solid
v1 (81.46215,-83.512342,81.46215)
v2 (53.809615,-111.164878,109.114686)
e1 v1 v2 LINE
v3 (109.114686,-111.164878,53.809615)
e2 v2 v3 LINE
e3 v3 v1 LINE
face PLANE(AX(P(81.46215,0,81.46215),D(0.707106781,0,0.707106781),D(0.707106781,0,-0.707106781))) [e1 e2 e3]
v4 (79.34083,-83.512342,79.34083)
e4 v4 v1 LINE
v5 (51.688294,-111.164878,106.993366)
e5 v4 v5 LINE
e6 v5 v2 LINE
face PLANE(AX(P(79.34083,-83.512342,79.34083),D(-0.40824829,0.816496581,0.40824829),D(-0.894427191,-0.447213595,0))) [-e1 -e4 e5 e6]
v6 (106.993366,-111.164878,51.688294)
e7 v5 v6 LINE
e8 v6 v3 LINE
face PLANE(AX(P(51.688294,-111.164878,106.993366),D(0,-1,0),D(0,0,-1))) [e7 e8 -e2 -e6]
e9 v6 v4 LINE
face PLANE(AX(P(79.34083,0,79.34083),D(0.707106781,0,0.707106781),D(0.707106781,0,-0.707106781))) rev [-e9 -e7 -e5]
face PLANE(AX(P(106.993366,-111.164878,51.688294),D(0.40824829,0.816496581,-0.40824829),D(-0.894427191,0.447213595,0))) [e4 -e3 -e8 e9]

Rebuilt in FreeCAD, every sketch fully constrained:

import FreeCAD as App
import Part
import Sketcher

doc = App.newDocument("Part")
body = doc.addObject("PartDesign::Body", "Body")

# Sketch on an angled plane
sketch1 = doc.addObject("Sketcher::SketchObject", "Sketch")
body.addObject(sketch1)
sketch1.Placement = App.Placement(App.Vector(80.40149, 0, 80.40149), App.Rotation(App.Vector(0.707106781, 0, -0.707106781), App.Vector(0, 0.999999999, 0), App.Vector(0.707106781, 0, 0.707106781), "ZXY"))
sketch1.addGeometry(Part.LineSegment(App.Vector(0, -84, 0), App.Vector(-39, -111, 0)), False)
sketch1.addGeometry(Part.LineSegment(App.Vector(-39, -111, 0), App.Vector(39, -111, 0)), False)
sketch1.addGeometry(Part.LineSegment(App.Vector(39, -111, 0), App.Vector(0, -84, 0)), False)
sketch1.addConstraint(Sketcher.Constraint("Coincident", 0, 2, 1, 1))
sketch1.addConstraint(Sketcher.Constraint("Coincident", 1, 2, 2, 1))
sketch1.addConstraint(Sketcher.Constraint("Coincident", 2, 2, 0, 1))
sketch1.addConstraint(Sketcher.Constraint("Horizontal", 1))
sketch1.addConstraint(Sketcher.Constraint("PointOnObject", 2, 2, -2))
sketch1.addConstraint(Sketcher.Constraint("Equal", 0, 2))
sketch1.addConstraint(Sketcher.Constraint("DistanceX", 1, 1, 1, 2, 78.213182))
sketch1.addConstraint(Sketcher.Constraint("Distance", 0, 47.895597))
sketch1.addConstraint(Sketcher.Constraint("DistanceY", 0, 2, -1, 1, 111.164878))
pad1 = doc.addObject("PartDesign::Pad", "Pad")
body.addObject(pad1)
pad1.Profile = sketch1
pad1.Length = 3
pad1.Midplane = True

doc.recompute()
